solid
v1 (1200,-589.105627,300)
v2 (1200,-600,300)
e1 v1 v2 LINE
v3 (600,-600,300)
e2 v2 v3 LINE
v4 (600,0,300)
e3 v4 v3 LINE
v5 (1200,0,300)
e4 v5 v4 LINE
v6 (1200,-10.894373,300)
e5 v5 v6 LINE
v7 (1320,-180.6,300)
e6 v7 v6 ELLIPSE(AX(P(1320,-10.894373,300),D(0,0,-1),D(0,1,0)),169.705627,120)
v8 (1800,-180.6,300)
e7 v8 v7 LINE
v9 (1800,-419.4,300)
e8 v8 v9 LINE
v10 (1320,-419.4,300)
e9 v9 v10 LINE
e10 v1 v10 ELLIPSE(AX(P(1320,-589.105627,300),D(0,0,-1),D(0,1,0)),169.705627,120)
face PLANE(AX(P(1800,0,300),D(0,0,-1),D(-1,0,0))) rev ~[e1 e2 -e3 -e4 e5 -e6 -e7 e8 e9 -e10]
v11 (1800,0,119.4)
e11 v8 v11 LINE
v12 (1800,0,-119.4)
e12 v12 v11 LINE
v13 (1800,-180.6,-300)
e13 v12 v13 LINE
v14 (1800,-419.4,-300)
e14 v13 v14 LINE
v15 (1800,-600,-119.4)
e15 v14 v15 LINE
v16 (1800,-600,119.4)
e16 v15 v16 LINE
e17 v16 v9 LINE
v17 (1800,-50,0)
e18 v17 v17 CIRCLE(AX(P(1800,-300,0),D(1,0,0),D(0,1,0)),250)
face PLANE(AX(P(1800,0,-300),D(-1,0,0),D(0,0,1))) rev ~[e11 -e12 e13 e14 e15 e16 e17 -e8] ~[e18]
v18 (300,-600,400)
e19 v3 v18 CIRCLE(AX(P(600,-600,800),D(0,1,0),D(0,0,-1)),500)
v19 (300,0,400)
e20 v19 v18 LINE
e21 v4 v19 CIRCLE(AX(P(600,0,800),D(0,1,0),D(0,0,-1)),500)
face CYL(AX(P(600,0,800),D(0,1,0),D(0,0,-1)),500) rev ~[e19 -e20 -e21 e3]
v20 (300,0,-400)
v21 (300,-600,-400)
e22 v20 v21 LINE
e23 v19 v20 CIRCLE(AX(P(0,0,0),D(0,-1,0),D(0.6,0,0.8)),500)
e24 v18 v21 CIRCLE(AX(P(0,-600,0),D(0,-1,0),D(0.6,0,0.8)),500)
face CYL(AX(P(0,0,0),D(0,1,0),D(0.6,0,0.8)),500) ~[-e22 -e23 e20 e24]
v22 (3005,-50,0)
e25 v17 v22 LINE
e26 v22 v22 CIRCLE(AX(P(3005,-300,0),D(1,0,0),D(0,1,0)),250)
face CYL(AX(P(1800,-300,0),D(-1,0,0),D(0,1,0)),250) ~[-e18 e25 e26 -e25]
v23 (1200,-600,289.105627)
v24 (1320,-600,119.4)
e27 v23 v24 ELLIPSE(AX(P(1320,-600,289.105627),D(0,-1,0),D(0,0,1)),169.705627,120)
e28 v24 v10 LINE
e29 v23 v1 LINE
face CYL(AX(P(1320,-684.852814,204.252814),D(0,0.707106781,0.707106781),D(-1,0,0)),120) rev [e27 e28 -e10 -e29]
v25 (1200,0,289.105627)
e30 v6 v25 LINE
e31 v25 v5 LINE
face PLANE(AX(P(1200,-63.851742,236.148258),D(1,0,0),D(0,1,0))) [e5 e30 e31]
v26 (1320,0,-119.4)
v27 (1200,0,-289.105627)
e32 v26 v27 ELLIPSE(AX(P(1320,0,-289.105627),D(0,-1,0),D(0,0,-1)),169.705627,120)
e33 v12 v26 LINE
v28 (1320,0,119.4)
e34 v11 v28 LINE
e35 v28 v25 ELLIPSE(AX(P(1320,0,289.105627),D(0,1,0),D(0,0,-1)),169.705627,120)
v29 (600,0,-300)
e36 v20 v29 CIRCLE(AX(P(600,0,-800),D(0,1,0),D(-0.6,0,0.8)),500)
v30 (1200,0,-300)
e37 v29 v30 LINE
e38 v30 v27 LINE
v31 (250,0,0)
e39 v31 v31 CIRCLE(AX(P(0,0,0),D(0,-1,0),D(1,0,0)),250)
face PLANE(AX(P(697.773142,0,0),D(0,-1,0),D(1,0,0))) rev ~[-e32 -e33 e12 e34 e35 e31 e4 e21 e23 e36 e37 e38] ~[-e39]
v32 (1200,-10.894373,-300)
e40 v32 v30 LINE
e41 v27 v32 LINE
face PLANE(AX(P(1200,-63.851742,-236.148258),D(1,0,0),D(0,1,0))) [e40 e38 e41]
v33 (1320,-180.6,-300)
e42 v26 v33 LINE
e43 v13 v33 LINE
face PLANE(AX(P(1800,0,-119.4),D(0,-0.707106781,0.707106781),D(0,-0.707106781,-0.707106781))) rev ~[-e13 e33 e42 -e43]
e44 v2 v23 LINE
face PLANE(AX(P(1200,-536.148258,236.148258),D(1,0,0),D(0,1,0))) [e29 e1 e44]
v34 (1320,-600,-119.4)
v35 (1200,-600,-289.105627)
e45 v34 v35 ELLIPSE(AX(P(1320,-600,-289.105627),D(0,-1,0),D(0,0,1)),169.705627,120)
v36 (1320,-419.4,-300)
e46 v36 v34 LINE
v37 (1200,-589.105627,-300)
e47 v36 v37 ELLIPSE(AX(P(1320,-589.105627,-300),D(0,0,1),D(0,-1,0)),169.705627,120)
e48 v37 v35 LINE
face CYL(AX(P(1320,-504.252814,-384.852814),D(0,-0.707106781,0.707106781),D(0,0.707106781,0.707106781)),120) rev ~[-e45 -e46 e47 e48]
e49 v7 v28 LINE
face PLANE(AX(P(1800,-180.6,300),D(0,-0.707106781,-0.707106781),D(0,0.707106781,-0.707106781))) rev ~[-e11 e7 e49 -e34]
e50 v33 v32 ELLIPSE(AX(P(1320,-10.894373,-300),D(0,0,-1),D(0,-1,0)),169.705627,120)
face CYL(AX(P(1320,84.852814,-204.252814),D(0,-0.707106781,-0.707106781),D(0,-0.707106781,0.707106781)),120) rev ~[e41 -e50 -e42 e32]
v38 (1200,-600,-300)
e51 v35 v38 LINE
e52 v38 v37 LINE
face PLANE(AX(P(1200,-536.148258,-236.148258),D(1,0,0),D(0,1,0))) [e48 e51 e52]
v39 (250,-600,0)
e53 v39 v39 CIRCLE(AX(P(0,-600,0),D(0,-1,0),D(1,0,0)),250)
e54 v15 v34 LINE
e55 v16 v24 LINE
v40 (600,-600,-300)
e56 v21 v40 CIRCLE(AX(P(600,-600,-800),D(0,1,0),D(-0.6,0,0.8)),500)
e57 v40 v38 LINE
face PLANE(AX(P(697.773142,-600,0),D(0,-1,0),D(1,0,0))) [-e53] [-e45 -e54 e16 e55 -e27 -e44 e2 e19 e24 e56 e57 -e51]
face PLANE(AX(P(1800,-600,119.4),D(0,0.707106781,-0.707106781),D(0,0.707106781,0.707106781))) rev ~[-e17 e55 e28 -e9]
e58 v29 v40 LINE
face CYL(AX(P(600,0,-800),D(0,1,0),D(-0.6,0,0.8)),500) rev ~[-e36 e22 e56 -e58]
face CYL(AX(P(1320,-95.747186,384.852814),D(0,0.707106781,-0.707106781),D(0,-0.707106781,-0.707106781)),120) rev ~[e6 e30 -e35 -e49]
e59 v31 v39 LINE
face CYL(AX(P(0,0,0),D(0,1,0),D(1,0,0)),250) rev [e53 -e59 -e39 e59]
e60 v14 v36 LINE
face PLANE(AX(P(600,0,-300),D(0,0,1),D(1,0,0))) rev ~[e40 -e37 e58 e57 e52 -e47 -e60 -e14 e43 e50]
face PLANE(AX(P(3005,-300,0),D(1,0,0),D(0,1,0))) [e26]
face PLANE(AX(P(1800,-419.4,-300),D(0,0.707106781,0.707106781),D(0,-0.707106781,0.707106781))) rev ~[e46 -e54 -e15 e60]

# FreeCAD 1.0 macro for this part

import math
import FreeCAD as App
import Part
import Sketcher

V = App.Vector


def edges_at(feature, points):
    """Names of the edges that pass closest to the given points."""
    edges = feature.Shape.Edges
    near = lambda p: min(range(len(edges)), key=lambda i: edges[i].distToShape(Part.Vertex(*p))[0])
    return sorted({f"Edge{near(p) + 1}" for p in points})


def add_polygon(sketch, points):
    """Adds a closed chain of lines whose ends are joined by coincident constraints."""
    first, n = sketch.GeometryCount, len(points)
    for a, b in zip(points, points[1:] + points[:1]):
        sketch.addGeometry(Part.LineSegment(App.Vector(*a, 0), App.Vector(*b, 0)), False)
    for i in range(n):
        sketch.addConstraint(Sketcher.Constraint("Coincident", first + i, 2, first + (i + 1) % n, 1))

doc = App.newDocument("Part")
body = doc.addObject("PartDesign::Body", "Body")

sketch1 = body.newObject("Sketcher::SketchObject", "Sketch")
sketch1.AttachmentSupport = (doc.getObject("XZ_Plane"), [""])
sketch1.MapMode = "FlatFace"
sketch1.addGeometry([
    Part.ArcOfCircle(Part.Circle(V(600, 800, 0), V(0, 0, 1), 500), math.radians(-126.869898), math.radians(-90)),
    Part.ArcOfCircle(Part.Circle(V(0, 0, 0), V(0, 0, 1), 500), math.radians(53.130102), math.radians(306.869898)),
    Part.ArcOfCircle(Part.Circle(V(600, -800, 0), V(0, 0, 1), 500), math.radians(90), math.radians(126.869898)),
    Part.LineSegment(V(600, -300, 0), V(1800, -300, 0)),
    Part.LineSegment(V(1800, -300, 0), V(1800, 300, 0)),
    Part.LineSegment(V(1800, 300, 0), V(600, 300, 0)),
    Part.Circle(V(0, 0, 0), V(0, 0, 1), 250),
], False)
sketch1.addConstraint([
    Sketcher.Constraint("Tangent", 0, 1, 1, 1),
    Sketcher.Constraint("Tangent", 1, 2, 2, 2),
    Sketcher.Constraint("Tangent", 2, 1, 3, 1),
    Sketcher.Constraint("Coincident", 3, 2, 4, 1),
    Sketcher.Constraint("Coincident", 4, 2, 5, 1),
    Sketcher.Constraint("Tangent", 5, 2, 0, 2),
    Sketcher.Constraint("Horizontal", 3),
    Sketcher.Constraint("Vertical", 4),
    Sketcher.Constraint("Horizontal", 5),
    Sketcher.Constraint("Coincident", 1, 3, -1, 1),
    Sketcher.Constraint("Coincident", 6, 3, -1, 1),
    Sketcher.Constraint("Equal", 0, 1),
    Sketcher.Constraint("Equal", 1, 2),
    Sketcher.Constraint("Vertical", 0, 3, 2, 3),
    Sketcher.Constraint("Diameter", 6, 500.0),
    Sketcher.Constraint("Radius", 0, 500.0),
    Sketcher.Constraint("DistanceX", 3, 1, 3, 2, 1200.0),
    Sketcher.Constraint("DistanceY", 4, 1, 4, 2, 600.0),
])
pad1 = body.newObject("PartDesign::Pad", "Pad")
pad1.Profile = sketch1
pad1.Length = 600

sketch2 = body.newObject("Sketcher::SketchObject", "Sketch001")
sketch2.AttachmentSupport = (doc.getObject("YZ_Plane"), [""])
sketch2.MapMode = "FlatFace"
sketch2.AttachmentOffset = App.Placement(V(0, 0, 1800), App.Rotation())
add_polygon(sketch2, [(-600, 119.4), (-419.4, 300), (-600, 300)])
add_polygon(sketch2, [(0, 300), (-180.6, 300), (0, 119.4)])
add_polygon(sketch2, [(0, -300), (0, -119.4), (-180.6, -300)])
add_polygon(sketch2, [(-419.4, -300), (-600, -119.4), (-600, -300)])
sketch2.addConstraint([
    Sketcher.Constraint("Horizontal", 1),
    Sketcher.Constraint("Vertical", 2),
    Sketcher.Constraint("Horizontal", 3),
    Sketcher.Constraint("Vertical", 5),
    Sketcher.Constraint("Vertical", 6),
    Sketcher.Constraint("Horizontal", 8),
    Sketcher.Constraint("Vertical", 10),
    Sketcher.Constraint("Horizontal", 11),
    Sketcher.Constraint("Symmetric", 4, 2, 6, 2, -1, 1),
    Sketcher.Constraint("Symmetric", 3, 2, 7, 2, -1),
    Sketcher.Constraint("Symmetric", 2, 2, 9, 2, -1),
    Sketcher.Constraint("Symmetric", 0, 2, 11, 2, -1),
    Sketcher.Constraint("PointOnObject", 4, 2, -2),
    Sketcher.Constraint("Perpendicular", 0, 4),
    Sketcher.Constraint("Perpendicular", 4, 7),
    Sketcher.Constraint("Horizontal", 1, 2, 3, 2),
    Sketcher.Constraint("Horizontal", 2, 2, 4, 2),
    Sketcher.Constraint("DistanceX", 1, 2, 1, 1, 180.6),
    Sketcher.Constraint("DistanceY", -1, 1, 0, 2, 300.0),
    Sketcher.Constraint("DistanceX", 1, 2, -1, 1, 600.0),
])
pocket1 = body.newObject("PartDesign::Pocket", "Pocket")
pocket1.Profile = sketch2
pocket1.Length = 600

sketch3 = body.newObject("Sketcher::SketchObject", "Sketch002")
sketch3.AttachmentSupport = (doc.getObject("YZ_Plane"), [""])
sketch3.MapMode = "FlatFace"
sketch3.AttachmentOffset = App.Placement(V(0, 0, 1800), App.Rotation())
sketch3.addGeometry(Part.Circle(V(-300, 0, 0), V(0, 0, 1), 250), False)
sketch3.addConstraint([
    Sketcher.Constraint("PointOnObject", 0, 3, -1),
    Sketcher.Constraint("Diameter", 0, 500.0),
    Sketcher.Constraint("DistanceX", 0, 3, -1, 1, 300.0),
])
pad2 = body.newObject("PartDesign::Pad", "Pad001")
pad2.Profile = sketch3
pad2.Length = 1205
doc.recompute()

fillet = body.newObject("PartDesign::Fillet", "Fillet")
fillet.Base = (pad2, edges_at(pad2, [
    (1200, -509.7, 209.7),
    (1200, -509.7, -209.7),
    (1200, -90.3, -209.7),
    (1200, -90.3, 209.7),
]))
fillet.Radius = 120

doc.recompute()
